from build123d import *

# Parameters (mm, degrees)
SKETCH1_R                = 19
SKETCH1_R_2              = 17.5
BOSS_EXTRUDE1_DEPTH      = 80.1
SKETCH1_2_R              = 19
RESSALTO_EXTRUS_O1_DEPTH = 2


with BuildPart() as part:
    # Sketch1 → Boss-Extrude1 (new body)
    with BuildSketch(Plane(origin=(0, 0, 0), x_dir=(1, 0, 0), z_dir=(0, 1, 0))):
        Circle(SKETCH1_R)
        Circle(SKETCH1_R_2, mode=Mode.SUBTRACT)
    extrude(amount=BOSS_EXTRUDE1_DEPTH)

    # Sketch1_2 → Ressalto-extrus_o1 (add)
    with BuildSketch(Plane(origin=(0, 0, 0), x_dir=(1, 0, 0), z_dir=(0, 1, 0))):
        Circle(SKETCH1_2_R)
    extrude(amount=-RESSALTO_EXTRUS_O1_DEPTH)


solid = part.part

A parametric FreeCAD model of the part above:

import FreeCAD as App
import Part
import Sketcher
from FreeCAD import Vector

doc = App.newDocument("Part")
body = doc.addObject("PartDesign::Body", "Body")

# Sketch on XZ plane
sketch1 = body.newObject("Sketcher::SketchObject", "Sketch")
sketch1.AttachmentSupport = (doc.getObject("XZ_Plane"), [""])
sketch1.MapMode = "FlatFace"
sketch1.addGeometry(Part.Circle(Vector(0, 0, 0), Vector(0, 0, 1), 19), False)
sketch1.addGeometry(Part.Circle(Vector(0, 0, 0), Vector(0, 0, 1), 18), False)
sketch1.addConstraint(Sketcher.Constraint("Coincident", 0, 3, -1, 1))
sketch1.addConstraint(Sketcher.Constraint("Coincident", 1, 3, -1, 1))
sketch1.addConstraint(Sketcher.Constraint("Diameter", 0, 38.0))
sketch1.addConstraint(Sketcher.Constraint("Diameter", 1, 35.0))
pad1 = body.newObject("PartDesign::Pad", "Pad")
pad1.Profile = sketch1
pad1.Length = 80.1
pad1.Reversed = True

# Sketch on XZ plane
sketch2 = body.newObject("Sketcher::SketchObject", "Sketch001")
sketch2.AttachmentSupport = (doc.getObject("XZ_Plane"), [""])
sketch2.MapMode = "FlatFace"
sketch2.addGeometry(Part.Circle(Vector(0, 0, 0), Vector(0, 0, 1), 19), False)
sketch2.addConstraint(Sketcher.Constraint("Coincident", 0, 3, -1, 1))
sketch2.addConstraint(Sketcher.Constraint("Diameter", 0, 38.0))
pad2 = body.newObject("PartDesign::Pad", "Pad001")
pad2.Profile = sketch2
pad2.Length = 2

doc.recompute()
